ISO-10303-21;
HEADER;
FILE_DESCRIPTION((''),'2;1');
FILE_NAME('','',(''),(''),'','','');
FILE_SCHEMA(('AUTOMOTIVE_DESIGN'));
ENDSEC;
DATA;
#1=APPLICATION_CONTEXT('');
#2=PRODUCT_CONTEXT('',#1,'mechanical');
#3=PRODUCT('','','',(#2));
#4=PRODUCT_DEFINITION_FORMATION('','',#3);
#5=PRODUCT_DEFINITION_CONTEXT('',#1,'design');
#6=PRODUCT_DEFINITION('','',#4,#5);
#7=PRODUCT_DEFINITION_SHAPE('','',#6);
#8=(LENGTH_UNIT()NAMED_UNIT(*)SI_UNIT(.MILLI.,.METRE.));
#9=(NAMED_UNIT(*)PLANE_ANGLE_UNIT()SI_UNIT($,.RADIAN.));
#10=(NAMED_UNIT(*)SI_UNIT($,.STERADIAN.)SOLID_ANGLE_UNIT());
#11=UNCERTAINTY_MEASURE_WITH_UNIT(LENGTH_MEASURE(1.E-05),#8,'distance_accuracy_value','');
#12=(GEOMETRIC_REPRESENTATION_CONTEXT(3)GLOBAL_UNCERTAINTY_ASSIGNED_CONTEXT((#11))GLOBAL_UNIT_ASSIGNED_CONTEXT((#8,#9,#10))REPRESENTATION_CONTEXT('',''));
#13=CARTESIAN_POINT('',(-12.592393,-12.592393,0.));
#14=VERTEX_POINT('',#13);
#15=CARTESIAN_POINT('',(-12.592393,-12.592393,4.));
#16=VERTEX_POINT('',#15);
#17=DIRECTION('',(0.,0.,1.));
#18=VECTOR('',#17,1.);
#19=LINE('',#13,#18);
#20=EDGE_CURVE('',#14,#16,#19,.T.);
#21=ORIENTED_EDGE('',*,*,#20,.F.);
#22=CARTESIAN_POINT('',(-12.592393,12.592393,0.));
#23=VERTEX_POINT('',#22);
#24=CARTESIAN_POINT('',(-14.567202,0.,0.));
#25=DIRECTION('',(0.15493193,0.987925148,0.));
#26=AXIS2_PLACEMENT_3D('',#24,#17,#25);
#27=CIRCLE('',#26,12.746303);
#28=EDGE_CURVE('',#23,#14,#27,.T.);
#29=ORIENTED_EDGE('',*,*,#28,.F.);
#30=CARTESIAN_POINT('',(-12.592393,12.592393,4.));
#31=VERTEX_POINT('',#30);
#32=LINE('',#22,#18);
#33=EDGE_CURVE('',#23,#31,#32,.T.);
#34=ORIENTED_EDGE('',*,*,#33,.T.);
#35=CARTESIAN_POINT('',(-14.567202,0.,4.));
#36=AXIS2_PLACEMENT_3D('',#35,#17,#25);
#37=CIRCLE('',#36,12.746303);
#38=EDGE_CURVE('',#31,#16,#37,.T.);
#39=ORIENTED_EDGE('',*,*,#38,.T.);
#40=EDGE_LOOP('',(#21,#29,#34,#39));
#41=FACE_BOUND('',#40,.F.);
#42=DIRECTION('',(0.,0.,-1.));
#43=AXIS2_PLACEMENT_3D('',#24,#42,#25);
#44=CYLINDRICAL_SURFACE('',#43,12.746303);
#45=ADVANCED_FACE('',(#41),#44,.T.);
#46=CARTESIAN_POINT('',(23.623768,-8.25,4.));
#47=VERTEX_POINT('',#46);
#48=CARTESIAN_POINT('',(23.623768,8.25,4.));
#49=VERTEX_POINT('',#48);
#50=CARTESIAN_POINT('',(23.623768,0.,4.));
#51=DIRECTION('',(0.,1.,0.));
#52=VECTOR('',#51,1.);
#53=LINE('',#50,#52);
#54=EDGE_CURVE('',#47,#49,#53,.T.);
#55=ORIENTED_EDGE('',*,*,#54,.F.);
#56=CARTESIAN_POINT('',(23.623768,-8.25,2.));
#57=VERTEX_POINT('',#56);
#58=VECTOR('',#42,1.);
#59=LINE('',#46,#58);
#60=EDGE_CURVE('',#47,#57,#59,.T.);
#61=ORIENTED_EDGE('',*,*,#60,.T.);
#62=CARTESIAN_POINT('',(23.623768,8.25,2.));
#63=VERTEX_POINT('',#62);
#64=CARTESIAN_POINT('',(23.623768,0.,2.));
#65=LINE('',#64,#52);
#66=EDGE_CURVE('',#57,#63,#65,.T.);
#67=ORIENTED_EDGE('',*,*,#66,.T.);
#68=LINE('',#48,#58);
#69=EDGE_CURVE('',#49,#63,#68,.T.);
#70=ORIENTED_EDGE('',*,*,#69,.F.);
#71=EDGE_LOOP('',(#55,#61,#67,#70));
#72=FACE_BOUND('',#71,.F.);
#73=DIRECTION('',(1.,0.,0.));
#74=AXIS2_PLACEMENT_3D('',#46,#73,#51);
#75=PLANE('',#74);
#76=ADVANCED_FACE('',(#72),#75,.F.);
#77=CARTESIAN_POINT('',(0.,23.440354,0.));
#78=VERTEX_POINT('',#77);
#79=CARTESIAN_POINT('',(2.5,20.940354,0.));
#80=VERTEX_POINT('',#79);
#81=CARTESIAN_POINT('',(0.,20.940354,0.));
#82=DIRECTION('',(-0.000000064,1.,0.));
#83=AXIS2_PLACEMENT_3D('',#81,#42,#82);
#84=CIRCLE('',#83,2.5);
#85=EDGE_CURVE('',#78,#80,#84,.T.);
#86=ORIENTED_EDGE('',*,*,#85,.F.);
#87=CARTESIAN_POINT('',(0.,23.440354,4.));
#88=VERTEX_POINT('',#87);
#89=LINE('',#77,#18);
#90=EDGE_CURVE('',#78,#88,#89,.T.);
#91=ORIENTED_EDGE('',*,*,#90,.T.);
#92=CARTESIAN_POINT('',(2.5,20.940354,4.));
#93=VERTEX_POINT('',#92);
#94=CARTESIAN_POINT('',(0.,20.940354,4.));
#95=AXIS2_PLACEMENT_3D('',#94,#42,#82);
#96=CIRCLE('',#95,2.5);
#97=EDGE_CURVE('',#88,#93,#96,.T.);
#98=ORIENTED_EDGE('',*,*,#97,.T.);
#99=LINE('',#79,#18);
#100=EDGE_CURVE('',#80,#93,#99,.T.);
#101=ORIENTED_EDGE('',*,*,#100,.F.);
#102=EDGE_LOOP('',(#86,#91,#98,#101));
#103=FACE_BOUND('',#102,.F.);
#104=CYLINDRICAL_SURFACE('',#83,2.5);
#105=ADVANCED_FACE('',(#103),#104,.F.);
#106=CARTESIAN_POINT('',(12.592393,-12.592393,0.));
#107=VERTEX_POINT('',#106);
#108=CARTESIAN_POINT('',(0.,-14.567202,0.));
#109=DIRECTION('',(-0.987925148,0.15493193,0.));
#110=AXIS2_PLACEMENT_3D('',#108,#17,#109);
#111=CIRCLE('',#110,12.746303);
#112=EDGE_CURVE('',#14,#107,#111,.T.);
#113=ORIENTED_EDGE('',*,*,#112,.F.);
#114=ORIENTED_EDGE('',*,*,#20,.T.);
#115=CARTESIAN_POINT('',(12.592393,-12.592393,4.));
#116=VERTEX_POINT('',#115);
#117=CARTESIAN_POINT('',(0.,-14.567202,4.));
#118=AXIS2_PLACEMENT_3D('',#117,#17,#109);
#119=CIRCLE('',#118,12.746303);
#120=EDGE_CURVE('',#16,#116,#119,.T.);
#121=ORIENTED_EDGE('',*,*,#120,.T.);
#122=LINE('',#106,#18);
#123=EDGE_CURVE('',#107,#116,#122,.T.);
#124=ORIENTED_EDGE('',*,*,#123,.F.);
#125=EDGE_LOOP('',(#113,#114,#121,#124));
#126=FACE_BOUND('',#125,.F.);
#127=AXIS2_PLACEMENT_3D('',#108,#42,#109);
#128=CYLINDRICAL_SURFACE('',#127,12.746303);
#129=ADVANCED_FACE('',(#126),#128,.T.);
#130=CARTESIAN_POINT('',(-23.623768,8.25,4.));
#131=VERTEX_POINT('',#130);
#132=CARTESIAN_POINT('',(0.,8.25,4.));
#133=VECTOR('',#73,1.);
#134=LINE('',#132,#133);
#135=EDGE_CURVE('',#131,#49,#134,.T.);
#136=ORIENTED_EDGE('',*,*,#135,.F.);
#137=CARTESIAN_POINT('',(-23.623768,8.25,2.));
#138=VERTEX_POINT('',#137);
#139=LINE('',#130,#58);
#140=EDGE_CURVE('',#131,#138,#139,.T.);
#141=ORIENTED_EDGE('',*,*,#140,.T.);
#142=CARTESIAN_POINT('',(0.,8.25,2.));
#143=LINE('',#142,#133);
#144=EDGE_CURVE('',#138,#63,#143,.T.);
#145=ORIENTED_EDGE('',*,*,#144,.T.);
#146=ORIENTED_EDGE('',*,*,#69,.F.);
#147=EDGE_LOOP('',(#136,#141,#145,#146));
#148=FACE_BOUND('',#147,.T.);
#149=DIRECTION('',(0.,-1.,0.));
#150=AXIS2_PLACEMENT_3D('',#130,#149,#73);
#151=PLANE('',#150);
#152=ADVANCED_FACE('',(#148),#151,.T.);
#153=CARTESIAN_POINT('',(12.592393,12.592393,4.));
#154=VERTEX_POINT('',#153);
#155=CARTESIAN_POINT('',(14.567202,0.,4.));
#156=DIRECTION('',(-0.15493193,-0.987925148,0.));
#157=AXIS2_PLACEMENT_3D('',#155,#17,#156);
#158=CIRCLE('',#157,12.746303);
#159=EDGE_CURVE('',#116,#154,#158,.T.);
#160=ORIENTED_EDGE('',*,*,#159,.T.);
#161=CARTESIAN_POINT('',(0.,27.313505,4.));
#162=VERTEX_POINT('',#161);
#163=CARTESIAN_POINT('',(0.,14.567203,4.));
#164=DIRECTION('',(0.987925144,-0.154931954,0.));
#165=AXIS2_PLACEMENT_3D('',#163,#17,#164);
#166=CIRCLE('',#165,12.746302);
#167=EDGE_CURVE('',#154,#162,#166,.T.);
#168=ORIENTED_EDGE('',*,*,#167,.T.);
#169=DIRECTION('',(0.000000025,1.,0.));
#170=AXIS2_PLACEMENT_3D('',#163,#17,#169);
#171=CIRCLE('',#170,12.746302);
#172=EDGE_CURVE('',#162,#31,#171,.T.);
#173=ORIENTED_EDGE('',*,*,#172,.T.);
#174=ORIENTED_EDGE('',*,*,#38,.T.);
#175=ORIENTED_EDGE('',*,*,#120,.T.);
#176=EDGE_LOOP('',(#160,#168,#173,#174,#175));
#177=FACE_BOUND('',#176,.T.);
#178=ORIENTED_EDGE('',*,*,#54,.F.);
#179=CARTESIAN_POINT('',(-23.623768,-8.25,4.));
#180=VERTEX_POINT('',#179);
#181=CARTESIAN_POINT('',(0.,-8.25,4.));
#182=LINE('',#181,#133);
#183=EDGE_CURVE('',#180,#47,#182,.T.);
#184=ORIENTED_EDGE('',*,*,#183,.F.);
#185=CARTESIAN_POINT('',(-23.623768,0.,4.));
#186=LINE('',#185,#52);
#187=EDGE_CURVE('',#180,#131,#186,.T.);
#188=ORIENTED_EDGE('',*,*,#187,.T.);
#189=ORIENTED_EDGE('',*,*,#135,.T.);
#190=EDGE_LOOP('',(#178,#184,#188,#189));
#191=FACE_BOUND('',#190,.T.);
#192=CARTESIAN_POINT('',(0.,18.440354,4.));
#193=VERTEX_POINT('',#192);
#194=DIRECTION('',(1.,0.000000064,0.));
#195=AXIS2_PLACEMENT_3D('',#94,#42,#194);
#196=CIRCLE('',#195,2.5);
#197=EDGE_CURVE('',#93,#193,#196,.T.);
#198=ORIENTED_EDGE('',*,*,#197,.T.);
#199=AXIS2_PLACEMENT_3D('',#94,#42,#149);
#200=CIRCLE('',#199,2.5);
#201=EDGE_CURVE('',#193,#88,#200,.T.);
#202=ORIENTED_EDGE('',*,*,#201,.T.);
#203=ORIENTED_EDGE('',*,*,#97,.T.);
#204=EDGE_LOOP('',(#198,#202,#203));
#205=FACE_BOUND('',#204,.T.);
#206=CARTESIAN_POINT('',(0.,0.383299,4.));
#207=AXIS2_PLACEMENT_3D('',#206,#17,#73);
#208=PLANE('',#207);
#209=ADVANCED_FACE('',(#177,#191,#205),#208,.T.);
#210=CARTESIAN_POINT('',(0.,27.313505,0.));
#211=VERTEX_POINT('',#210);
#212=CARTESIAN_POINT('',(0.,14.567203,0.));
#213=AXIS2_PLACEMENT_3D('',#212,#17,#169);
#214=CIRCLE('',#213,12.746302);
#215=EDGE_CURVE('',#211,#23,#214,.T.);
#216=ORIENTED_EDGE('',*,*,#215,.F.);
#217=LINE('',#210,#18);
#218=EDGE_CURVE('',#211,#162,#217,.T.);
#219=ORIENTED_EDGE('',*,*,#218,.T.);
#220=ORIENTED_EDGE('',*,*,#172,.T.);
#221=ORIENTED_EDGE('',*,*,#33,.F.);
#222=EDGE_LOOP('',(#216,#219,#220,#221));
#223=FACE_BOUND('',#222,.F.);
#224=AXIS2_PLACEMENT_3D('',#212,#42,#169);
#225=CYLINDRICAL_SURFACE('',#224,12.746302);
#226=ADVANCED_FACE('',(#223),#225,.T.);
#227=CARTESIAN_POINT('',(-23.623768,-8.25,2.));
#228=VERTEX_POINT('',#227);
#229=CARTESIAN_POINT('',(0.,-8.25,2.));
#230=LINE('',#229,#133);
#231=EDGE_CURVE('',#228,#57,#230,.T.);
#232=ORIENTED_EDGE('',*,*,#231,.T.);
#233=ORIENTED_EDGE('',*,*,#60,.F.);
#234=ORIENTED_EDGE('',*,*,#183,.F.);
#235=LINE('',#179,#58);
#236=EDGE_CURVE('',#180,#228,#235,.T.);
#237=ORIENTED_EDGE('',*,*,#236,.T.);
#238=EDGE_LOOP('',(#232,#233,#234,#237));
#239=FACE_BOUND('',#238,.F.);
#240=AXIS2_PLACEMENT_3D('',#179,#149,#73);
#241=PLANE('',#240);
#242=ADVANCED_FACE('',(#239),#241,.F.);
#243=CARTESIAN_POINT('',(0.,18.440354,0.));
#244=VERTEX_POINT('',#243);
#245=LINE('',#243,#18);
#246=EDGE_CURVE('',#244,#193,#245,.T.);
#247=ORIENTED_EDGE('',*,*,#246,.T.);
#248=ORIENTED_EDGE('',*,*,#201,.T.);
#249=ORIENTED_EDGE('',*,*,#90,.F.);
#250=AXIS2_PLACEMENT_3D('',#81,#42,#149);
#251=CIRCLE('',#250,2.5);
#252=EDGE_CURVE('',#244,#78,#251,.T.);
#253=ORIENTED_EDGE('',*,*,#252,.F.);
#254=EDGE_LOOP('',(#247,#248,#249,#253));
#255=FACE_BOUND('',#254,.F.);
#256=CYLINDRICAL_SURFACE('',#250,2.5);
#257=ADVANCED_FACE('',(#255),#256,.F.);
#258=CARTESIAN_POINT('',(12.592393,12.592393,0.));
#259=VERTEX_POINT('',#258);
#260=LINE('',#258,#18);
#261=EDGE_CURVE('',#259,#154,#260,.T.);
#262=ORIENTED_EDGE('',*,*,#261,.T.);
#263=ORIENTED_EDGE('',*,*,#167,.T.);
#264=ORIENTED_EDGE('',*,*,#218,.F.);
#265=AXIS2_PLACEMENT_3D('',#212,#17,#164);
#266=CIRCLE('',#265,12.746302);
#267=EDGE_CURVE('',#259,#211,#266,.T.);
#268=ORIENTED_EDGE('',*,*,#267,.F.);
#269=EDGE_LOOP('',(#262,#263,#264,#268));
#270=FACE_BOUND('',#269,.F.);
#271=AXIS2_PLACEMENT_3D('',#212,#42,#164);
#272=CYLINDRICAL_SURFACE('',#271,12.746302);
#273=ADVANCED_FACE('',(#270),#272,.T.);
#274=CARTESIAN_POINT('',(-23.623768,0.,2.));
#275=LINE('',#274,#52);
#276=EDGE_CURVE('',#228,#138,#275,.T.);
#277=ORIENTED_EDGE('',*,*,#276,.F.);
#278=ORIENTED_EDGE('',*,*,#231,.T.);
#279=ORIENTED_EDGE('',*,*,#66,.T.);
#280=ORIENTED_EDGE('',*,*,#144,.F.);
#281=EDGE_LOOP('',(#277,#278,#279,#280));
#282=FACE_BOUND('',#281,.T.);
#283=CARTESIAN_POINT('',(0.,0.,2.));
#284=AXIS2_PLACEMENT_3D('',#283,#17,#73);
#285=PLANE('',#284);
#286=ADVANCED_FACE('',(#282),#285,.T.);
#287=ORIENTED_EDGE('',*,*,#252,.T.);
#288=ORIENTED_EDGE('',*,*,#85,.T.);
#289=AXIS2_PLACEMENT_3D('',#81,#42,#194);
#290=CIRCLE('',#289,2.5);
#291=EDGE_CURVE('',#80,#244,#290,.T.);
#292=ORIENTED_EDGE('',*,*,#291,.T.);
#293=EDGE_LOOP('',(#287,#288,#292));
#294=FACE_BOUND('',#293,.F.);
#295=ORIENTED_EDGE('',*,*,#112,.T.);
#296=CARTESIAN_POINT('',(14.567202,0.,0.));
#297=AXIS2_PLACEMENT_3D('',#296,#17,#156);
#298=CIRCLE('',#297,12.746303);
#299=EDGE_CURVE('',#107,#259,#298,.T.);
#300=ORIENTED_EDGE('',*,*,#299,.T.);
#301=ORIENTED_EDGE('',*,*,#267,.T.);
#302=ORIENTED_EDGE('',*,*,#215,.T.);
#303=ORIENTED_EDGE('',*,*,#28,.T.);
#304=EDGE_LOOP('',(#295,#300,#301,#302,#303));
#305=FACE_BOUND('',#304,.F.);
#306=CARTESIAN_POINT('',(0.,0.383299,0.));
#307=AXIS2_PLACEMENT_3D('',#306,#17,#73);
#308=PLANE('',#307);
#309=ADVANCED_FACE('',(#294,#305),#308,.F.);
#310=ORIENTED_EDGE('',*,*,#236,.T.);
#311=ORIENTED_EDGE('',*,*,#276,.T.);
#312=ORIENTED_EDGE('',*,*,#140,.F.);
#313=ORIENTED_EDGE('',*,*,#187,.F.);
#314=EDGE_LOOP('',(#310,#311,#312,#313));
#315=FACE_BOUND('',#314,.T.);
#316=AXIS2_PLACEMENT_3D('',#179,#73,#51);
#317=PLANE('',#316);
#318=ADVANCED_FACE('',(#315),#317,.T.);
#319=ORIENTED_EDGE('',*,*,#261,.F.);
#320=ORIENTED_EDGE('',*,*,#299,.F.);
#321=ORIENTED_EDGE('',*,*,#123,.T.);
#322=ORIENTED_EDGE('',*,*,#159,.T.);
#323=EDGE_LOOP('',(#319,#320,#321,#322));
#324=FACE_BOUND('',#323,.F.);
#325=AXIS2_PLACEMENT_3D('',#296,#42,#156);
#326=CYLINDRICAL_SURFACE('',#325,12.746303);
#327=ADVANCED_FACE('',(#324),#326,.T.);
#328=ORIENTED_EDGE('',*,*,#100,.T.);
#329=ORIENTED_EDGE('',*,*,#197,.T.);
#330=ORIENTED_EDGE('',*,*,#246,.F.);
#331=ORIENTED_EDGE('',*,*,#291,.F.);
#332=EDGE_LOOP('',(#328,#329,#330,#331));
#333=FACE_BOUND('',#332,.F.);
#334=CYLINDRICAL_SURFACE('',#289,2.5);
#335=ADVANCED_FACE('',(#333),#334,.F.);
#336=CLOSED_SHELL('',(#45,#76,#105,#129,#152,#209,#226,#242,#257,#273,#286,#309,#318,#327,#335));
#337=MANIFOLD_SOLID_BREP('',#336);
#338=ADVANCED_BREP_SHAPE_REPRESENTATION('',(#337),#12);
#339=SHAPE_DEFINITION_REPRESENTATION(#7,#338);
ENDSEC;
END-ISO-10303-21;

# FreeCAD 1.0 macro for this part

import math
import FreeCAD as App
import Part
import Sketcher


def add_polygon(sketch, points):
    """Adds a closed chain of lines whose ends are joined by coincident constraints."""
    first, n = sketch.GeometryCount, len(points)
    for a, b in zip(points, points[1:] + points[:1]):
        sketch.addGeometry(Part.LineSegment(App.Vector(*a, 0), App.Vector(*b, 0)), False)
    for i in range(n):
        sketch.addConstraint(Sketcher.Constraint("Coincident", first + i, 2, first + (i + 1) % n, 1))

doc = App.newDocument("Part")
body = doc.addObject("PartDesign::Body", "Body")

sketch1 = body.newObject("Sketcher::SketchObject", "Sketch")
sketch1.AttachmentSupport = (doc.getObject("XY_Plane"), [""])
sketch1.MapMode = "FlatFace"
sketch1.addGeometry(Part.ArcOfCircle(Part.Circle(App.Vector(0, 14.6, 0), App.Vector(0, 0, 1), 12.7), math.radians(90), math.radians(189)), False)
sketch1.addGeometry(Part.ArcOfCircle(Part.Circle(App.Vector(-14.6, 0, 0), App.Vector(0, 0, 1), 12.7), math.radians(81), math.radians(279)), False)
sketch1.addGeometry(Part.ArcOfCircle(Part.Circle(App.Vector(0, -14.6, 0), App.Vector(0, 0, 1), 12.7), math.radians(171), math.radians(369)), False)
sketch1.addGeometry(Part.ArcOfCircle(Part.Circle(App.Vector(14.6, 0, 0), App.Vector(0, 0, 1), 12.7), math.radians(-99), math.radians(99)), False)
sketch1.addGeometry(Part.ArcOfCircle(Part.Circle(App.Vector(0, 14.6, 0), App.Vector(0, 0, 1), 12.7), math.radians(-9), math.radians(90)), False)
sketch1.addGeometry(Part.ArcOfCircle(Part.Circle(App.Vector(0, 20.9, 0), App.Vector(0, 0, 1), 2.5), math.radians(-90), math.radians(0)), False)
sketch1.addGeometry(Part.ArcOfCircle(Part.Circle(App.Vector(0, 20.9, 0), App.Vector(0, 0, 1), 2.5), math.radians(90), math.radians(270)), False)
sketch1.addGeometry(Part.ArcOfCircle(Part.Circle(App.Vector(0, 20.9, 0), App.Vector(0, 0, 1), 2.5), math.radians(0), math.radians(90)), False)
sketch1.addConstraint(Sketcher.Constraint("Coincident", 0, 2, 1, 1))
sketch1.addConstraint(Sketcher.Constraint("Coincident", 1, 2, 2, 1))
sketch1.addConstraint(Sketcher.Constraint("Coincident", 2, 2, 3, 1))
sketch1.addConstraint(Sketcher.Constraint("Coincident", 3, 2, 4, 1))
sketch1.addConstraint(Sketcher.Constraint("Tangent", 4, 2, 0, 1))
sketch1.addConstraint(Sketcher.Constraint("Tangent", 5, 1, 6, 2))
sketch1.addConstraint(Sketcher.Constraint("Tangent", 6, 1, 7, 2))
sketch1.addConstraint(Sketcher.Constraint("Tangent", 7, 1, 5, 2))
sketch1.addConstraint(Sketcher.Constraint("Equal", 0, 1))
sketch1.addConstraint(Sketcher.Constraint("Equal", 1, 2))
sketch1.addConstraint(Sketcher.Constraint("Equal", 2, 3))
sketch1.addConstraint(Sketcher.Constraint("Equal", 3, 4))
sketch1.addConstraint(Sketcher.Constraint("Symmetric", 0, 3, 2, 3, -1, 1))
sketch1.addConstraint(Sketcher.Constraint("Symmetric", 1, 3, 3, 3, -1, 1))
sketch1.addConstraint(Sketcher.Constraint("Symmetric", 1, 2, 2, 2, -2))
sketch1.addConstraint(Sketcher.Constraint("PointOnObject", 5, 3, -2))
sketch1.addConstraint(Sketcher.Constraint("PointOnObject", 4, 2, -2))
sketch1.addConstraint(Sketcher.Constraint("PointOnObject", 5, 1, -2))
sketch1.addConstraint(Sketcher.Constraint("PointOnObject", 6, 1, -2))
sketch1.addConstraint(Sketcher.Constraint("Horizontal", 6, 3, 7, 1))
sketch1.addConstraint(Sketcher.Constraint("Radius", 5, 2.5))
sketch1.addConstraint(Sketcher.Constraint("Radius", 0, 12.746302))
sketch1.addConstraint(Sketcher.Constraint("DistanceX", 1, 3, 0, 3, 14.567202))
sketch1.addConstraint(Sketcher.Constraint("DistanceY", 4, 3, 5, 3, 6.373151))
sketch1.addConstraint(Sketcher.Constraint("DistanceY", 0, 2, 0, 3, 1.97481))
pad1 = body.newObject("PartDesign::Pad", "Pad")
pad1.Profile = sketch1
pad1.Length = 4

sketch2 = body.newObject("Sketcher::SketchObject", "Sketch001")
sketch2.AttachmentSupport = (doc.getObject("XY_Plane"), [""])
sketch2.MapMode = "FlatFace"
sketch2.AttachmentOffset = App.Placement(App.Vector(0, 0, 4), App.Rotation())
add_polygon(sketch2, [(-24, 8), (-24, -8), (24, -8), (24, 8)])
sketch2.addConstraint(Sketcher.Constraint("Vertical", 0))
sketch2.addConstraint(Sketcher.Constraint("Horizontal", 1))
sketch2.addConstraint(Sketcher.Constraint("Vertical", 2))
sketch2.addConstraint(Sketcher.Constraint("Horizontal", 3))
sketch2.addConstraint(Sketcher.Constraint("Symmetric", 0, 2, 2, 2, -1, 1))
sketch2.addConstraint(Sketcher.Constraint("DistanceY", 0, 2, 0, 1, 16.5))
sketch2.addConstraint(Sketcher.Constraint("DistanceX", 1, 1, 1, 2, 47.247536))
pocket1 = body.newObject("PartDesign::Pocket", "Pocket")
pocket1.Profile = sketch2
pocket1.Length = 2

doc.recompute()
